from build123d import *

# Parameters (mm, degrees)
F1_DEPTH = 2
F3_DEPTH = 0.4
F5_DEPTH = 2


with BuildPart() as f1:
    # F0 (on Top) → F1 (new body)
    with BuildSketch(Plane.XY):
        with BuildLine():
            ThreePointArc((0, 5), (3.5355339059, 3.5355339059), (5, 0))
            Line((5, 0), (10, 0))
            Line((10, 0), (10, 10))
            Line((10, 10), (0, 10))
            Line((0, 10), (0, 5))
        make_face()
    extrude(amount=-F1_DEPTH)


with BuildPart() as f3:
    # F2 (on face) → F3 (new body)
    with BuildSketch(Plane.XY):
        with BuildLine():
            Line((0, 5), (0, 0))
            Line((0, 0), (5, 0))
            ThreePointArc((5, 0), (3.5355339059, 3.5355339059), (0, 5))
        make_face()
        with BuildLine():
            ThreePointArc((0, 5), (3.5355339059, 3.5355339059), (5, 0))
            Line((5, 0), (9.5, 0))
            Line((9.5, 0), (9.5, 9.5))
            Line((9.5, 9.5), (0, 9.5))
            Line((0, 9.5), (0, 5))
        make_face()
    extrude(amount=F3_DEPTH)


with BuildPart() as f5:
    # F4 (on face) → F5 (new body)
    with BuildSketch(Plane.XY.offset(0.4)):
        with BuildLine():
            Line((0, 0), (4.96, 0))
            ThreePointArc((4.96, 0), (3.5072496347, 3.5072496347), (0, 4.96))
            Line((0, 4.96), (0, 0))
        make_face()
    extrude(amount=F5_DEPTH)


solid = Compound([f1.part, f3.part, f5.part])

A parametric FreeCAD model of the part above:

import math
import FreeCAD as App
import Part
import Sketcher
Q = App.Units.Quantity


def add_polygon(sketch, points):
    """Adds a closed chain of lines whose ends are joined by coincident constraints."""
    first, n = sketch.GeometryCount, len(points)
    for a, b in zip(points, points[1:] + points[:1]):
        sketch.addGeometry(Part.LineSegment(App.Vector(*a, 0), App.Vector(*b, 0)), False)
    for i in range(n):
        sketch.addConstraint(Sketcher.Constraint("Coincident", first + i, 2, first + (i + 1) % n, 1))

doc = App.newDocument("Part")
body = doc.addObject("PartDesign::Body", "Body")

# Sketch on XY plane
sketch1 = body.newObject("Sketcher::SketchObject", "Sketch")
sketch1.AttachmentSupport = (doc.getObject("XY_Plane"), [""])
sketch1.MapMode = "FlatFace"
sketch1.addGeometry([
    Part.ArcOfCircle(Part.Circle(App.Vector(0, 0, 0), App.Vector(0, 0, 1), 5), math.radians(0), math.radians(90)),  # 0
    Part.LineSegment(App.Vector(5, 0, 0), App.Vector(10, 0, 0)),  # 1
    Part.LineSegment(App.Vector(10, 0, 0), App.Vector(10, 10, 0)),  # 2
    Part.LineSegment(App.Vector(10, 10, 0), App.Vector(0, 10, 0)),  # 3
    Part.LineSegment(App.Vector(0, 10, 0), App.Vector(0, 5, 0)),  # 4
], False)
sketch1.addConstraint([
    Sketcher.Constraint("Coincident", 0, 1, 1, 1),
    Sketcher.Constraint("Coincident", 1, 2, 2, 1),
    Sketcher.Constraint("Coincident", 2, 2, 3, 1),
    Sketcher.Constraint("Coincident", 3, 2, 4, 1),
    Sketcher.Constraint("Coincident", 4, 2, 0, 2),
    Sketcher.Constraint("Horizontal", 1),
    Sketcher.Constraint("Vertical", 2),
    Sketcher.Constraint("Horizontal", 3),
    Sketcher.Constraint("Vertical", 4),
    Sketcher.Constraint("Coincident", 0, 3, -1, 1),
    Sketcher.Constraint("PointOnObject", 0, 1, -1),
    Sketcher.Constraint("PointOnObject", 3, 2, -2),
    Sketcher.Constraint("Equal", 3, 2),
    Sketcher.Constraint("Radius", 0, Q("5 mm")),
    Sketcher.Constraint("DistanceX", 1, 1, 1, 2, Q("5 mm")),
])
pad1 = body.newObject("PartDesign::Pad", "Pad")
pad1.Profile = sketch1
pad1.Length = 2
pad1.Reversed = True
body2 = doc.addObject("PartDesign::Body", "Body001")

# Sketch on XY plane
sketch2 = body2.newObject("Sketcher::SketchObject", "Sketch001")
sketch2.AttachmentSupport = (doc.getObject("XY_Plane001"), [""])
sketch2.MapMode = "FlatFace"
add_polygon(sketch2, [(0, 0), (10, 0), (10, 10), (0, 10)])  # lines 0-3
sketch2.addConstraint([
    Sketcher.Constraint("Horizontal", 0),
    Sketcher.Constraint("Vertical", 1),
    Sketcher.Constraint("Horizontal", 2),
    Sketcher.Constraint("Vertical", 3),
    Sketcher.Constraint("Coincident", 3, 2, -1, 1),
    Sketcher.Constraint("Equal", 2, 1),
    Sketcher.Constraint("DistanceX", 0, 1, 0, 2, Q("9.5 mm")),
])
pad2 = body2.newObject("PartDesign::Pad", "Pad001")
pad2.Profile = sketch2
pad2.Length = 0.4
body3 = doc.addObject("PartDesign::Body", "Body002")

# Sketch on XY plane
sketch3 = body3.newObject("Sketcher::SketchObject", "Sketch002")
sketch3.AttachmentSupport = (doc.getObject("XY_Plane002"), [""])
sketch3.MapMode = "FlatFace"
sketch3.AttachmentOffset = App.Placement(App.Vector(0, 0, 0.4), App.Rotation())
sketch3.addGeometry([
    Part.LineSegment(App.Vector(0, 0, 0), App.Vector(5, 0, 0)),
    Part.ArcOfCircle(Part.Circle(App.Vector(0, 0, 0), App.Vector(0, 0, 1), 5), math.radians(0), math.radians(90)),
    Part.LineSegment(App.Vector(0, 5, 0), App.Vector(0, 0, 0)),
], False)
sketch3.addConstraint([
    Sketcher.Constraint("Coincident", 0, 2, 1, 1),
    Sketcher.Constraint("Coincident", 1, 2, 2, 1),
    Sketcher.Constraint("Coincident", 2, 2, 0, 1),
    Sketcher.Constraint("Horizontal", 0),
    Sketcher.Constraint("Vertical", 2),
    Sketcher.Constraint("Coincident", 1, 3, -1, 1),
    Sketcher.Constraint("Coincident", 2, 2, -1, 1),
    Sketcher.Constraint("Radius", 1, Q("4.96 mm")),
])
pad3 = body3.newObject("PartDesign::Pad", "Pad002")
pad3.Profile = sketch3
pad3.Length = 2

doc.recompute()
